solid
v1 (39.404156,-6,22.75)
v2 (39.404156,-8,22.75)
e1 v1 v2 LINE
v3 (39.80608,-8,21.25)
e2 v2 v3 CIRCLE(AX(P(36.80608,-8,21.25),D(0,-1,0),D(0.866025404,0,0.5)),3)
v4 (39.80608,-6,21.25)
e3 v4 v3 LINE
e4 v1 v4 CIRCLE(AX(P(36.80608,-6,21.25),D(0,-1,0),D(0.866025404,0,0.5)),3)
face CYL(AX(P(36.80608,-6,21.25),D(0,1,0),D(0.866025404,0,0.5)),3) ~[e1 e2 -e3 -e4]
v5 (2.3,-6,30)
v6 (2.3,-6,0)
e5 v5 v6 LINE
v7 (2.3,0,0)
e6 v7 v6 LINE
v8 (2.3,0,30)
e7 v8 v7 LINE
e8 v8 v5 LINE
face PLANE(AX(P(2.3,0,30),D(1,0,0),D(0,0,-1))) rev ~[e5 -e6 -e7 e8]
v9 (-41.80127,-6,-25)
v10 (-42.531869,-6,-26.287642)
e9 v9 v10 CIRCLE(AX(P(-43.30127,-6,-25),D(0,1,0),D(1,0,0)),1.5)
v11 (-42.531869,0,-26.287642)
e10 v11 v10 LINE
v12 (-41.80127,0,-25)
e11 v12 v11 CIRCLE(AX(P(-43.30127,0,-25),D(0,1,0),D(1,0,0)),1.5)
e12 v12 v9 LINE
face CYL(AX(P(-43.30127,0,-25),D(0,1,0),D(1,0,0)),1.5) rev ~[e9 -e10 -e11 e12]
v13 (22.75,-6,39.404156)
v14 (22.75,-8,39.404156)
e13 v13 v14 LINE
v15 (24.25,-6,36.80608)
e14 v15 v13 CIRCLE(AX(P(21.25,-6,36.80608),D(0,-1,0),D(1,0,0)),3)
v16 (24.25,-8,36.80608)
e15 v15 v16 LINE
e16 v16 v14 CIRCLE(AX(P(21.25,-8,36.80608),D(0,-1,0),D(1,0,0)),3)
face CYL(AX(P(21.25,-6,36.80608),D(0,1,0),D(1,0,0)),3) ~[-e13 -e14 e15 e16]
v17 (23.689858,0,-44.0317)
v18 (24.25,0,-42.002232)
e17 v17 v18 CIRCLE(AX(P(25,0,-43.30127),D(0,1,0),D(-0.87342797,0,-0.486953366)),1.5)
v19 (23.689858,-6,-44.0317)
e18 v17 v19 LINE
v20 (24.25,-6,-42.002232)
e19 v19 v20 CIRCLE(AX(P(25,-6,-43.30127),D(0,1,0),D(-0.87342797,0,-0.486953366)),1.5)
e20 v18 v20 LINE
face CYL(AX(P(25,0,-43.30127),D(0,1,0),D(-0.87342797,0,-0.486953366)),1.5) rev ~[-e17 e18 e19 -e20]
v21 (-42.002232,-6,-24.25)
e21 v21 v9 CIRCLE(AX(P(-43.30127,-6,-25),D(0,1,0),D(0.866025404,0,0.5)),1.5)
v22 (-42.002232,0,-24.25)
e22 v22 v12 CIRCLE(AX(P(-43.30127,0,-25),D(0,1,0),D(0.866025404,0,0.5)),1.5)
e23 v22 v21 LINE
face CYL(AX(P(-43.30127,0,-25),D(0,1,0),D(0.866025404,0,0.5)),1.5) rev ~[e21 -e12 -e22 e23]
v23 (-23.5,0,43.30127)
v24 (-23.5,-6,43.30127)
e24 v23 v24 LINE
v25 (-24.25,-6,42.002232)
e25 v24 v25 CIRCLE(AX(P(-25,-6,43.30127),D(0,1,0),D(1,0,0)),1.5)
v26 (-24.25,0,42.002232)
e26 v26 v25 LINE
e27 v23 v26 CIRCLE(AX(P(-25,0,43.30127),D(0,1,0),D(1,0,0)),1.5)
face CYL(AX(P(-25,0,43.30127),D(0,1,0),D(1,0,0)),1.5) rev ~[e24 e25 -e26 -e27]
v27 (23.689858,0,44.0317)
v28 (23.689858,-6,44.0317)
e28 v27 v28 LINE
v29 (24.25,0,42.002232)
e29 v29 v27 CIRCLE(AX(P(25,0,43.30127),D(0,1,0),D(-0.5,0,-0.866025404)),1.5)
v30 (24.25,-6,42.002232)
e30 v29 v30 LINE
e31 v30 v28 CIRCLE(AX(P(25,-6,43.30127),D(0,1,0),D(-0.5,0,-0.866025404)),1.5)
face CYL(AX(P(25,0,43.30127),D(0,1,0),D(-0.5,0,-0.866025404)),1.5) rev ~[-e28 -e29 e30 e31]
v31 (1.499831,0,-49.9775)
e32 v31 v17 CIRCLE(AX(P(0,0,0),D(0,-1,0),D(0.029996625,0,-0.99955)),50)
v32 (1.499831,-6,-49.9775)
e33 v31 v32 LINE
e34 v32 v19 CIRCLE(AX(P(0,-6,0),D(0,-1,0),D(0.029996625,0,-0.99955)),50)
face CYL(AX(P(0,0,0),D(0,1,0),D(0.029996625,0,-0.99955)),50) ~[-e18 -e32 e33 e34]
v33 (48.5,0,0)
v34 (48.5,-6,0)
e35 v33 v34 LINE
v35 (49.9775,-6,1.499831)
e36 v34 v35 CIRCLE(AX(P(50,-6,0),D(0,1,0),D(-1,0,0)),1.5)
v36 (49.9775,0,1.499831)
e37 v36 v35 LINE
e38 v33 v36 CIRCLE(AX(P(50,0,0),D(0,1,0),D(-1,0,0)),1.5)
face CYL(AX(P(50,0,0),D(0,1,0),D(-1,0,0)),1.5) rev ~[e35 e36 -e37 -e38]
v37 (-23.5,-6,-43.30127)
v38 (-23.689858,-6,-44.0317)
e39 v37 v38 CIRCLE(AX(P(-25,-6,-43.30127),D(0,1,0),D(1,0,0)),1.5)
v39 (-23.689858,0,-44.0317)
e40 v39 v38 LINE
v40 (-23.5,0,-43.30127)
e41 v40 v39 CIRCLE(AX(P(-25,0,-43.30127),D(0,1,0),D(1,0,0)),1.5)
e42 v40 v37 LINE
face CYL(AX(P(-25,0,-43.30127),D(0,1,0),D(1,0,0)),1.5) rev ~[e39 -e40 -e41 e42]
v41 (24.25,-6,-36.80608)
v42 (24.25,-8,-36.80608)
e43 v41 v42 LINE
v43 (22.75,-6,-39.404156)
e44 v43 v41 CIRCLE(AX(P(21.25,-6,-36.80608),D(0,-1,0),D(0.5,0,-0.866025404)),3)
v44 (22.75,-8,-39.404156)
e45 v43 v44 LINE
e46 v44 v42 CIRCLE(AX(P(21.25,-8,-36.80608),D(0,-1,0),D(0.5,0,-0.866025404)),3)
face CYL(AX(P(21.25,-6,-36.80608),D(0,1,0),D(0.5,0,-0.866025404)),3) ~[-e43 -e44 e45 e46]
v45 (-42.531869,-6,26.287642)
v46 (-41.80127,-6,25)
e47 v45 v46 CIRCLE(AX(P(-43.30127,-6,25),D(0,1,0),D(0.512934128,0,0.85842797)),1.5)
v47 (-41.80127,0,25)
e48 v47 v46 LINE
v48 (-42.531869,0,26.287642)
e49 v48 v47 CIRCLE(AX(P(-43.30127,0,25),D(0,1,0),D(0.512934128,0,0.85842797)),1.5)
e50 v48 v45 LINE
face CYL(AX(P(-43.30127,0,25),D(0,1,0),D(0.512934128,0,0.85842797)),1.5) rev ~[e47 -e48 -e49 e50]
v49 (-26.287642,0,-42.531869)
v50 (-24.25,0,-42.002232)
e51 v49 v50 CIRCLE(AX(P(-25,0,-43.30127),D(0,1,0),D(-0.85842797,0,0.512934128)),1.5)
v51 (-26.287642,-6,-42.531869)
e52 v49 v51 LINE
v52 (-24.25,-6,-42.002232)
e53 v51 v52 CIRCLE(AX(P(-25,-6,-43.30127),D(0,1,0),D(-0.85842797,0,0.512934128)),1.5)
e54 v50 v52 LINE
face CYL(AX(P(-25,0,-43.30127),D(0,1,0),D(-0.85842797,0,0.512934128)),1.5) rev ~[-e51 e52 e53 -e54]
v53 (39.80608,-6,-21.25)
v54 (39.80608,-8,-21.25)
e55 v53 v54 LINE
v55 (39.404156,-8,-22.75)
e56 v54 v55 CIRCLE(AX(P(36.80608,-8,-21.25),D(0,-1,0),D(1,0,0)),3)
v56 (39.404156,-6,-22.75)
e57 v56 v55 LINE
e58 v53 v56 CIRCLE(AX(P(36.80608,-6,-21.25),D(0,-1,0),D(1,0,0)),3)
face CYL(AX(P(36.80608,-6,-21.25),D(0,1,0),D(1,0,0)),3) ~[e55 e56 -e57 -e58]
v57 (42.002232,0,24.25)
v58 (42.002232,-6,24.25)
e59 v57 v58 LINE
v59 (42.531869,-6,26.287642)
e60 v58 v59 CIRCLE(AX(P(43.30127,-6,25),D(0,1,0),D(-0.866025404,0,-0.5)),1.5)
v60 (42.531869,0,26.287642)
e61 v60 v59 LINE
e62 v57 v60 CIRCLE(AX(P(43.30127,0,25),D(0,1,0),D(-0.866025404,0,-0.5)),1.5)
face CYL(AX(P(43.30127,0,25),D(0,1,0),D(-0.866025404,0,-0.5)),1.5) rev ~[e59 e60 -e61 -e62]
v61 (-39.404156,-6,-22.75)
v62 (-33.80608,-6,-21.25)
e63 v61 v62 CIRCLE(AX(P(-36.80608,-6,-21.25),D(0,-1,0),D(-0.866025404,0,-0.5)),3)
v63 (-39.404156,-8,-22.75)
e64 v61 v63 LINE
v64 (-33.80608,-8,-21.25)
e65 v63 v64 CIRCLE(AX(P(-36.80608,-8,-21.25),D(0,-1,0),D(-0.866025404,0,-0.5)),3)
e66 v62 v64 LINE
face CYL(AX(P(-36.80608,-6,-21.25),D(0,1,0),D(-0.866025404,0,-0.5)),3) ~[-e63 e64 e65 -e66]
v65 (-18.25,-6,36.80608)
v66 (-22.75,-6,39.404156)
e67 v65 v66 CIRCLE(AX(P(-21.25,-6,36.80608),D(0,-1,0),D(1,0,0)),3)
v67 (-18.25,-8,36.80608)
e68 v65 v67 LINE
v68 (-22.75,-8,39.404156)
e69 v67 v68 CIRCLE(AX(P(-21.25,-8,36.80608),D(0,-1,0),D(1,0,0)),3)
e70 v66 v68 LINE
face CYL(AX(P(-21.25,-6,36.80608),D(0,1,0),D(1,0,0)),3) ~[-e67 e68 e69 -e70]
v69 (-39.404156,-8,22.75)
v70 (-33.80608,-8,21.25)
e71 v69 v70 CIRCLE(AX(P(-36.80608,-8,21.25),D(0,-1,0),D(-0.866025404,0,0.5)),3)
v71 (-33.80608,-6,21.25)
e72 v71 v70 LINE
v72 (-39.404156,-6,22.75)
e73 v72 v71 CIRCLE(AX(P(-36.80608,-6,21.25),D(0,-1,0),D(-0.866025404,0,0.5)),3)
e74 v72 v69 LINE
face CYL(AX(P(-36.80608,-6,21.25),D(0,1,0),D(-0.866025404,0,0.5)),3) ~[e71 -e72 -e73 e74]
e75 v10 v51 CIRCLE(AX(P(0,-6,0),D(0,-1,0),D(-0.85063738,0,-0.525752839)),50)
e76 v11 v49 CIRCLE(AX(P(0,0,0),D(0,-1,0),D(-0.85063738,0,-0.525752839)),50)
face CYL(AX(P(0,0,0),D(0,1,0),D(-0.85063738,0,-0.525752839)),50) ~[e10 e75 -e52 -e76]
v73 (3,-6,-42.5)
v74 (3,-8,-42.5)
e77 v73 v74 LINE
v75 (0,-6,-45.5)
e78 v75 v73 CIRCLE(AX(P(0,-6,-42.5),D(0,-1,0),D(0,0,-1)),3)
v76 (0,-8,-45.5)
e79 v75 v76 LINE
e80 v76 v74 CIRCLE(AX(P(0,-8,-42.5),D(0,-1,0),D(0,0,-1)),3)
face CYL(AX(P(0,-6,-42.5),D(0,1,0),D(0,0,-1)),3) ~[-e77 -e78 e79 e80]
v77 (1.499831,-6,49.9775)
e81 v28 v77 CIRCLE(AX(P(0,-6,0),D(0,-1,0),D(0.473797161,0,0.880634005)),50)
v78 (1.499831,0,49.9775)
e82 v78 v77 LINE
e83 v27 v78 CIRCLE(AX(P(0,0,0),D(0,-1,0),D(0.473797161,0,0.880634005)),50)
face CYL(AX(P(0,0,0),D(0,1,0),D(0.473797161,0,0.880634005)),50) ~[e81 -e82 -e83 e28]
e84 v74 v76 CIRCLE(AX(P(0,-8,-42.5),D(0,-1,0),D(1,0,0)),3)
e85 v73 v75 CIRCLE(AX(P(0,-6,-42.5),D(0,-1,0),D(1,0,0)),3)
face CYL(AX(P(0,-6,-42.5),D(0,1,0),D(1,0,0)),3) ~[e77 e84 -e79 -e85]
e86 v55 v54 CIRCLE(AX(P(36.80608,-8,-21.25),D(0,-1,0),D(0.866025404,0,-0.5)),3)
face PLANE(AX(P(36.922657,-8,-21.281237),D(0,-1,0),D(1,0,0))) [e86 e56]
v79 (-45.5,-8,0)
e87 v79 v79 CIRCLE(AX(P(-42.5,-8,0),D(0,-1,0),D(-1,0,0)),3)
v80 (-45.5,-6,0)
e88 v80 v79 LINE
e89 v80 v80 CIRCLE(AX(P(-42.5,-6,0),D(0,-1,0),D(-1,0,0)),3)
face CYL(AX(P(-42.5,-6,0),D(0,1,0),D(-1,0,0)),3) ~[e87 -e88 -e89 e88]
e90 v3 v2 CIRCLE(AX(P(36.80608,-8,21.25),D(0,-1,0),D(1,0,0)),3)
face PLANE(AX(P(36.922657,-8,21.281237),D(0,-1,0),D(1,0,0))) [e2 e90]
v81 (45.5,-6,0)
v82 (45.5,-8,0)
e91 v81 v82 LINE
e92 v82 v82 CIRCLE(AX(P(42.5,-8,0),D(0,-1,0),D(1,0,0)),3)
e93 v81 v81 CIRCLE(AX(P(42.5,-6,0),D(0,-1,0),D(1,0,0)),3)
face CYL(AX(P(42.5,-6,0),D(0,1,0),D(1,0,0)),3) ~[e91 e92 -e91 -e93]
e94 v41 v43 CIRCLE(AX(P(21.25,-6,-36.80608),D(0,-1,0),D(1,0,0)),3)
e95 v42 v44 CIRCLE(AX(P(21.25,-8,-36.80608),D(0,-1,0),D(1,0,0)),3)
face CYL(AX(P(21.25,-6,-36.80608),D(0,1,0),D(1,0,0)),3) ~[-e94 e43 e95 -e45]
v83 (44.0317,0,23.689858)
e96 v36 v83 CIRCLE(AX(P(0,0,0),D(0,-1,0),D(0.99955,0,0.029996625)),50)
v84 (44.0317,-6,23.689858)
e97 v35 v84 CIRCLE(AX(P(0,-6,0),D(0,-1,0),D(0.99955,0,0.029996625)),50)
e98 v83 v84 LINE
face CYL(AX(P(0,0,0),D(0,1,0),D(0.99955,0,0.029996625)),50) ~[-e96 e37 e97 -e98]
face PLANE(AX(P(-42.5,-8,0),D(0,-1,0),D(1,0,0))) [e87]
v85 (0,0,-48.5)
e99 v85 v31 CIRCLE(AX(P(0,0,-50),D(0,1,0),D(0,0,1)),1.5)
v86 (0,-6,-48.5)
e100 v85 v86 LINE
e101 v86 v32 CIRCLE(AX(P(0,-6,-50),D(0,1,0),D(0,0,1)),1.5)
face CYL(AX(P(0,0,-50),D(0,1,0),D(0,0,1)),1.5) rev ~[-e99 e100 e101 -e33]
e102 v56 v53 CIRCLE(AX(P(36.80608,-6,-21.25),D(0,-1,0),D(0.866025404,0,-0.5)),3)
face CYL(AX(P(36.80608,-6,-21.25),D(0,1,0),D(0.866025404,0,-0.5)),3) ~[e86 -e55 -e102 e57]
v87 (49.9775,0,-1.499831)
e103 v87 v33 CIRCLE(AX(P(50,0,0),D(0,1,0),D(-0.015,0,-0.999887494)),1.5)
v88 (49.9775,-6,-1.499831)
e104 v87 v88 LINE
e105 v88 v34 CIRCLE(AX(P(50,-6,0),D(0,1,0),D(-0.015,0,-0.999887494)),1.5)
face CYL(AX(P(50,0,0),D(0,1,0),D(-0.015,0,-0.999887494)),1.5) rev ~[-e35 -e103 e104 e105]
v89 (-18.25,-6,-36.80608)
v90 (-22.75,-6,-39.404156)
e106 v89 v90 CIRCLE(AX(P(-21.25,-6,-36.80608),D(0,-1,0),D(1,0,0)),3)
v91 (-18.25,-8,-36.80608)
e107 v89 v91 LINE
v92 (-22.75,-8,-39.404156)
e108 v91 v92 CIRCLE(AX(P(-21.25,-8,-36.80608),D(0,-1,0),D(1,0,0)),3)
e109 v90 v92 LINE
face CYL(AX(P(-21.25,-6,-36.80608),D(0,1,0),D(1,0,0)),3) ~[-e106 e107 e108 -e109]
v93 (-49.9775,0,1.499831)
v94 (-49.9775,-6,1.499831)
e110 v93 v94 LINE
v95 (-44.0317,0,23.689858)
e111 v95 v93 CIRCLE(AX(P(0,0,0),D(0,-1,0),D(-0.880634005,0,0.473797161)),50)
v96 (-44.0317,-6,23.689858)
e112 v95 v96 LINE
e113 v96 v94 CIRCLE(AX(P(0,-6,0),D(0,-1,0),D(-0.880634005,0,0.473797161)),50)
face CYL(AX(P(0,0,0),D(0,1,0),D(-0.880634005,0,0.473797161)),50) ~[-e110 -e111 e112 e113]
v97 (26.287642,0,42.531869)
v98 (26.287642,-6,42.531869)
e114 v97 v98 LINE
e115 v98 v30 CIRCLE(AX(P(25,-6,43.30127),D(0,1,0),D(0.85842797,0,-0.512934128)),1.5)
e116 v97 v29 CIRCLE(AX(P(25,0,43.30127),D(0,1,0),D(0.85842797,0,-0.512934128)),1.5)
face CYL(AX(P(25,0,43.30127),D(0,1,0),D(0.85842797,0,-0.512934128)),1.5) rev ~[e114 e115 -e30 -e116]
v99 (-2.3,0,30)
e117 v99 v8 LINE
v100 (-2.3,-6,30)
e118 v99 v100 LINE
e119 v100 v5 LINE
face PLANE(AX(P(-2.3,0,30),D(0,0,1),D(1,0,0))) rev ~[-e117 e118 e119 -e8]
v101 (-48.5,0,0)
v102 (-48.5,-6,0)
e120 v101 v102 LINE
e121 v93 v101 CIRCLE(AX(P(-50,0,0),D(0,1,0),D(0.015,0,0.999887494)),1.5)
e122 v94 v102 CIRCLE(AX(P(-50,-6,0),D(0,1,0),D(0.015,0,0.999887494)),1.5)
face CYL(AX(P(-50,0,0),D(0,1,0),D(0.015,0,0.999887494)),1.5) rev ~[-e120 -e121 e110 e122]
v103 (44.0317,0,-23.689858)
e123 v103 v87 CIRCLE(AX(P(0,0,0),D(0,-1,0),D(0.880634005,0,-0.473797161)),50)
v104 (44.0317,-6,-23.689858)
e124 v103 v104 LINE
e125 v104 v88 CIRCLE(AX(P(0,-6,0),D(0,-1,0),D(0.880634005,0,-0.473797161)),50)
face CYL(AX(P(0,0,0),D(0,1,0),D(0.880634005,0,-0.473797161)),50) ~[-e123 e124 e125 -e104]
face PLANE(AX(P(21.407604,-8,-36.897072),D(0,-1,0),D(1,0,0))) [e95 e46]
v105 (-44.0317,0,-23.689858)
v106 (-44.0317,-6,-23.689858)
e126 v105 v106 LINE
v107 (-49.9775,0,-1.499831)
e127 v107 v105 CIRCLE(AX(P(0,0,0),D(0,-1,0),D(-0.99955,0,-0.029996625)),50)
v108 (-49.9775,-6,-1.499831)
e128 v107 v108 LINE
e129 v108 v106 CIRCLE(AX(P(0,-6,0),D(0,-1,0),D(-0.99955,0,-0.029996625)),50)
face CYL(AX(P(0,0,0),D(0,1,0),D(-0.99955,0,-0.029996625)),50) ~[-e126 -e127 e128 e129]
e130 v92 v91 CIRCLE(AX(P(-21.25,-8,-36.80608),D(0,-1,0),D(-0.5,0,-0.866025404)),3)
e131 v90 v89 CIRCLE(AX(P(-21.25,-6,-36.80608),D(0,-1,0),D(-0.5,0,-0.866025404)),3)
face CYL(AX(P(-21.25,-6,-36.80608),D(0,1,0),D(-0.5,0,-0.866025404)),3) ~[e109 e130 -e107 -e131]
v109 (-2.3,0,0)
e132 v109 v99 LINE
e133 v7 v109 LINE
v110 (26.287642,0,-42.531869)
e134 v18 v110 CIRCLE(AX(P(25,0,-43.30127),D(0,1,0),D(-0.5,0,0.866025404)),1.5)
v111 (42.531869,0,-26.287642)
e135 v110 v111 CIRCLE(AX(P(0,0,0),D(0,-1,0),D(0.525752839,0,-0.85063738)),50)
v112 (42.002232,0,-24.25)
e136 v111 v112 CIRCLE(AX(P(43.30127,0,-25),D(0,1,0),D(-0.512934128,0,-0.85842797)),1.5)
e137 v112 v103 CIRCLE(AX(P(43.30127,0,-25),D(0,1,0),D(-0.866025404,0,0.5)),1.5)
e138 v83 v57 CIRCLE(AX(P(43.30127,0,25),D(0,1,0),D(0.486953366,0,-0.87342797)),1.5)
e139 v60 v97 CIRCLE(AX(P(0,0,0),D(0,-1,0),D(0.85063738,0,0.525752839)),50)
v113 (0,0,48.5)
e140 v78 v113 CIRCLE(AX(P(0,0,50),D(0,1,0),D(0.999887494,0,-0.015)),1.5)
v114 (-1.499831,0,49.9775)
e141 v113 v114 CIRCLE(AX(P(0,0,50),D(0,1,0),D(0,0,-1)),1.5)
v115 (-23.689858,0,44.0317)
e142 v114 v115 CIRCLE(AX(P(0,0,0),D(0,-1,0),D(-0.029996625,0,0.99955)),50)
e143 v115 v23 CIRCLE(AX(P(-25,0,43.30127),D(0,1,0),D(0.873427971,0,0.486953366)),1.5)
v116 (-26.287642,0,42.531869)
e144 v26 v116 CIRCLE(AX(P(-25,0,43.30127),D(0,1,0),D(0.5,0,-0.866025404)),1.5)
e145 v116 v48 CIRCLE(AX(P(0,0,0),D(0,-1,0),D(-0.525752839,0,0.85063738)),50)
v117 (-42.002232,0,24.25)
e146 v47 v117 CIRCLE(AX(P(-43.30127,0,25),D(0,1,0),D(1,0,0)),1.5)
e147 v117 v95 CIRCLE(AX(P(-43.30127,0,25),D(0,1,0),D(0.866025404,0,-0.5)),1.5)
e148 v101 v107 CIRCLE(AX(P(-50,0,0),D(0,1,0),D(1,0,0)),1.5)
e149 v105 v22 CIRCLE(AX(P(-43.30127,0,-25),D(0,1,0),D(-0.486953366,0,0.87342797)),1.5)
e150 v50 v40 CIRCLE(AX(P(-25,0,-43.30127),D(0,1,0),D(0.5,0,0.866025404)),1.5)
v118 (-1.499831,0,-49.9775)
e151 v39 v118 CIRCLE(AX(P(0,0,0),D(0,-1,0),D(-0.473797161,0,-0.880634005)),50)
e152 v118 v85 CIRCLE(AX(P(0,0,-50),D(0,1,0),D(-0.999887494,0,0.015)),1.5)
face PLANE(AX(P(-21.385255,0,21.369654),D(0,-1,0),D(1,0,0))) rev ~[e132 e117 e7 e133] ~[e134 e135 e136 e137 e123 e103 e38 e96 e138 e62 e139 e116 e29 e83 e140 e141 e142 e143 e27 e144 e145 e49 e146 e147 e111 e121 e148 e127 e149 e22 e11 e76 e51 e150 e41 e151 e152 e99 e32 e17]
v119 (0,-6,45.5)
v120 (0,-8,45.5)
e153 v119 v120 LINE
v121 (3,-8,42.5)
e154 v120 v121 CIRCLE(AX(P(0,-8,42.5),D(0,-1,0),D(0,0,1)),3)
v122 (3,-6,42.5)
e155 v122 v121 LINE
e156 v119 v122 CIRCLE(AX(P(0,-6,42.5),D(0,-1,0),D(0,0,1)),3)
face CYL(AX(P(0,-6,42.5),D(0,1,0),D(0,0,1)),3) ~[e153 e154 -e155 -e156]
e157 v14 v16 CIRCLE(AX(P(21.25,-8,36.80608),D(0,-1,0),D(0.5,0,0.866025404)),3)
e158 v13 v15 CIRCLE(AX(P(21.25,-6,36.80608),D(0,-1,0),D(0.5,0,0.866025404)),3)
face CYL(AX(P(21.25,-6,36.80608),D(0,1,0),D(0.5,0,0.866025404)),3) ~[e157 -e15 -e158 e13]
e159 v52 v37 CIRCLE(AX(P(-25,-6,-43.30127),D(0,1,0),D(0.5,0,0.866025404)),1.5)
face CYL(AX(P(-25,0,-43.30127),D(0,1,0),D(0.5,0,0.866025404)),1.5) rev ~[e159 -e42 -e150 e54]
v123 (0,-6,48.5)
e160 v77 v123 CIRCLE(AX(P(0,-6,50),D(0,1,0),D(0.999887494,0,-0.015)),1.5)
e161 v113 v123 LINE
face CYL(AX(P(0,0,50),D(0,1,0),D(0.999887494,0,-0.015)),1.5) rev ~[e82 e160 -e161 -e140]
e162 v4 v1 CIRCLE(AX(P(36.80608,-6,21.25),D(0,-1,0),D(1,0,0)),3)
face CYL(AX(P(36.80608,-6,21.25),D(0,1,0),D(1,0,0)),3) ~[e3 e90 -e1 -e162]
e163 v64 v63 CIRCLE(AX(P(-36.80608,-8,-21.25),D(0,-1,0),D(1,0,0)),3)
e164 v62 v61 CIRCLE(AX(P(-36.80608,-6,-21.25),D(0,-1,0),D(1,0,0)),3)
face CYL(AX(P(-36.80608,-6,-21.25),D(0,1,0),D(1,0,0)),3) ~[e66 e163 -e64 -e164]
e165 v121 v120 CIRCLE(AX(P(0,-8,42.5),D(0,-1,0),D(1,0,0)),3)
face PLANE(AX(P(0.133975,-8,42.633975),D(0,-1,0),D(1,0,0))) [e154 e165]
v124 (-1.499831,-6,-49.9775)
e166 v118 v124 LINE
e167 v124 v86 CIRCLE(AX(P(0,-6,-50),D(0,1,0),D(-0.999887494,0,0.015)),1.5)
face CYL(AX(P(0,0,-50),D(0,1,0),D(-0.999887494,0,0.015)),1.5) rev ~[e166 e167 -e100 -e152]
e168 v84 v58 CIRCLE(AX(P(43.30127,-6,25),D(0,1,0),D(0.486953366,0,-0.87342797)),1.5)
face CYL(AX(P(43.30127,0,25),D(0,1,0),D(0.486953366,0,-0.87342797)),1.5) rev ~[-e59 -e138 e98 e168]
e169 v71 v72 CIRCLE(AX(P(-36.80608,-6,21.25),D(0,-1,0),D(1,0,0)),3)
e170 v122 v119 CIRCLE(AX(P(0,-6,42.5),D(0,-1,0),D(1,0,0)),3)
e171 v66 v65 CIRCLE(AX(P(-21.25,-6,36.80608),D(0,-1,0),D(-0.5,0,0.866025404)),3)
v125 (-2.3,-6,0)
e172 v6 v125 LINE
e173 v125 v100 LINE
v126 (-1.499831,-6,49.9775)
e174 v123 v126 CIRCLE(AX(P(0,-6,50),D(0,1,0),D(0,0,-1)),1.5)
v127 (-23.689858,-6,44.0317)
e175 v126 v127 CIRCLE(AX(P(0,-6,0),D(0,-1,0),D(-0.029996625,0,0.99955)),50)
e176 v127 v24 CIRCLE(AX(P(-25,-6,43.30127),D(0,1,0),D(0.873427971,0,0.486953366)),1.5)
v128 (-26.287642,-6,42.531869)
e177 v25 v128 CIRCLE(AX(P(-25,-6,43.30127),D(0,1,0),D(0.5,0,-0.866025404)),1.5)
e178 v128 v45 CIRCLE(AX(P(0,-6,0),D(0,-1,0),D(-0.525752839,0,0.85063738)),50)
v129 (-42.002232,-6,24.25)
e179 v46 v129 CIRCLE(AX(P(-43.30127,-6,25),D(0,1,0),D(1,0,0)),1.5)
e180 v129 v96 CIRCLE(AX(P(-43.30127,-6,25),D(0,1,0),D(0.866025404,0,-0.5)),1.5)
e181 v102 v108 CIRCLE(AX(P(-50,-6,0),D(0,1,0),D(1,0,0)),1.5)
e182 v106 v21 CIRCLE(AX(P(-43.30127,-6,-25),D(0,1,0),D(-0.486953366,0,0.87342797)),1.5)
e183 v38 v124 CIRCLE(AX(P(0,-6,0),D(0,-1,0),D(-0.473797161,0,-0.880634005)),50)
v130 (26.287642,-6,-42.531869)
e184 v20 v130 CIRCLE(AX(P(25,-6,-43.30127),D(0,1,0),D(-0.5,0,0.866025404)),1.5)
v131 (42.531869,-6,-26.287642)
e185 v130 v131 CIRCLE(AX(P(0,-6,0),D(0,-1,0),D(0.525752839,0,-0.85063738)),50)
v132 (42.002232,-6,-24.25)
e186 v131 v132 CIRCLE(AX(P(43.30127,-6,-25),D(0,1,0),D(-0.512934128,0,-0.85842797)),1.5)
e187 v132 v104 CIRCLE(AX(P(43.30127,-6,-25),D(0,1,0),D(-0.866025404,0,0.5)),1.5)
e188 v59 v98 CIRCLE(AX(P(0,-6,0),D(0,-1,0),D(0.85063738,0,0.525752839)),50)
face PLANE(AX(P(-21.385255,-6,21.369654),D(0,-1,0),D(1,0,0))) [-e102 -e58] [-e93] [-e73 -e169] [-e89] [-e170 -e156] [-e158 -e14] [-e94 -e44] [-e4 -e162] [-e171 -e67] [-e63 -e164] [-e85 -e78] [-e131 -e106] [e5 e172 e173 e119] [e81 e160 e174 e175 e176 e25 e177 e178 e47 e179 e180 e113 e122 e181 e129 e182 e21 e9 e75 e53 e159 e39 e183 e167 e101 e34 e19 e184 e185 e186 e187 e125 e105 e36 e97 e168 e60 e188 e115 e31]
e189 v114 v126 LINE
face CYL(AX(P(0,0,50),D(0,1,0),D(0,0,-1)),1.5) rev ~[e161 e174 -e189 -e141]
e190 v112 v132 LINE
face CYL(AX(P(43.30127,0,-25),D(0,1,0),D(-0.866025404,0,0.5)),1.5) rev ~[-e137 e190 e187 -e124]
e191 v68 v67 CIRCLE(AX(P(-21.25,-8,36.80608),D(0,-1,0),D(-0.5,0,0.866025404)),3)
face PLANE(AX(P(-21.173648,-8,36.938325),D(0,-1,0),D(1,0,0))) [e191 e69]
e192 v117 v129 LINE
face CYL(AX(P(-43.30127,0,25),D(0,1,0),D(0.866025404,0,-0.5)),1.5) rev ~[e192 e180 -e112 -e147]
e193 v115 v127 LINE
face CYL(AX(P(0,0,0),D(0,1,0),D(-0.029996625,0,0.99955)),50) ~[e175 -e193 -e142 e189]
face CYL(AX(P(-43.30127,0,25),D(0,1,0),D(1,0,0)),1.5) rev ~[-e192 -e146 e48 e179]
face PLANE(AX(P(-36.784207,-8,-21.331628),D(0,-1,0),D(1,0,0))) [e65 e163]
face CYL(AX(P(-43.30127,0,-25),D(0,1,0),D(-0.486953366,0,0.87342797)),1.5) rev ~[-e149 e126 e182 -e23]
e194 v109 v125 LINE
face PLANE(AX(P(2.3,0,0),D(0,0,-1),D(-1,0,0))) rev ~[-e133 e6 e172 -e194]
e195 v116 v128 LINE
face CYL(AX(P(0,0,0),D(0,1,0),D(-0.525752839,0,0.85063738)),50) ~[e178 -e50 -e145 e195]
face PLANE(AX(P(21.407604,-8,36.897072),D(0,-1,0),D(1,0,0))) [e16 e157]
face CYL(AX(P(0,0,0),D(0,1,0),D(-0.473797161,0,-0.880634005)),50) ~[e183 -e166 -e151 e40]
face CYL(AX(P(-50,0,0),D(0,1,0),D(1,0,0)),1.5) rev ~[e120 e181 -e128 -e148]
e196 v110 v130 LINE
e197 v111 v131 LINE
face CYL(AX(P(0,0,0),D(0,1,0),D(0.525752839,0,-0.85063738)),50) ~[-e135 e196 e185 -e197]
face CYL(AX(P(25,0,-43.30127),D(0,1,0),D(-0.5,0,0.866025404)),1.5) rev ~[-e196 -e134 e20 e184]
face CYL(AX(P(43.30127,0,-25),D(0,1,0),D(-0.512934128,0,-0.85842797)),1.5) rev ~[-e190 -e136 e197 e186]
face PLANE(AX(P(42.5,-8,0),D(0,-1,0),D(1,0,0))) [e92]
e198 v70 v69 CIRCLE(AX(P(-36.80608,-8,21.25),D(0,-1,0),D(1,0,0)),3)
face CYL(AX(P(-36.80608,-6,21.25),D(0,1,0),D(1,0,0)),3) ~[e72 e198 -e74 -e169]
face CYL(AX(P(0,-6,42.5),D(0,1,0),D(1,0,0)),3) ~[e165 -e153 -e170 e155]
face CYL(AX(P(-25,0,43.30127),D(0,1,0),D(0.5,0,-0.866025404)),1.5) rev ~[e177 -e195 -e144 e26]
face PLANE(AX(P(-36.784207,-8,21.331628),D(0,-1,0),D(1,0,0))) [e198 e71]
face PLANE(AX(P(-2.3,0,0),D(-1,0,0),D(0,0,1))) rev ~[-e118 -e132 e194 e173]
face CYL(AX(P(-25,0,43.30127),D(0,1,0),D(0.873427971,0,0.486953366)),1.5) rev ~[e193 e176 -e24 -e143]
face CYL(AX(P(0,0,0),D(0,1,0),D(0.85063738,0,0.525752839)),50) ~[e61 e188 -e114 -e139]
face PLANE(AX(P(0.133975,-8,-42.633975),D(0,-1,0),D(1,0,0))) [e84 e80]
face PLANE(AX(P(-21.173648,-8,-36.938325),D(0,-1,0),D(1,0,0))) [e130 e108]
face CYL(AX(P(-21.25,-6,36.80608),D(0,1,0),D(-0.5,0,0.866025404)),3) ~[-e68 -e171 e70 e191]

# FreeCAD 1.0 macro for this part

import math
import FreeCAD as App
import Part
import Sketcher
Q = App.Units.Quantity


def add_polygon(sketch, points):
    """Adds a closed chain of lines whose ends are joined by coincident constraints."""
    first, n = sketch.GeometryCount, len(points)
    for a, b in zip(points, points[1:] + points[:1]):
        sketch.addGeometry(Part.LineSegment(App.Vector(*a, 0), App.Vector(*b, 0)), False)
    for i in range(n):
        sketch.addConstraint(Sketcher.Constraint("Coincident", first + i, 2, first + (i + 1) % n, 1))

doc = App.newDocument("Part")
body = doc.addObject("PartDesign::Body", "Body")

sketch1 = doc.addObject("Sketcher::SketchObject", "Sketch")
body.addObject(sketch1)
sketch1.AttachmentSupport = (doc.XZ_Plane, [""])
sketch1.MapMode = "FlatFace"
sketch1.addGeometry(Part.ArcOfCircle(Part.Circle(App.Vector(-50, 0, 0), App.Vector(0, 0, 1), 1.5), math.radians(-89.140531), math.radians(0)), False)
sketch1.addGeometry(Part.ArcOfCircle(Part.Circle(App.Vector(0, 0, 0), App.Vector(0, 0, 1), 50), math.radians(-178.281062), math.radians(-151.718938)), False)
sketch1.addGeometry(Part.ArcOfCircle(Part.Circle(App.Vector(-43.30127, -25, 0), App.Vector(0, 0, 1), 1.5), math.radians(30), math.radians(119.140531)), False)
sketch1.addGeometry(Part.ArcOfCircle(Part.Circle(App.Vector(-43.30127, -25, 0), App.Vector(0, 0, 1), 1.5), math.radians(0), math.radians(30)), False)
sketch1.addGeometry(Part.ArcOfCircle(Part.Circle(App.Vector(-43.30127, -25, 0), App.Vector(0, 0, 1), 1.5), math.radians(-59.140531), math.radians(0)), False)
sketch1.addGeometry(Part.ArcOfCircle(Part.Circle(App.Vector(0, 0, 0), App.Vector(0, 0, 1), 50), math.radians(-148.281062), math.radians(-121.718938)), False)
sketch1.addGeometry(Part.ArcOfCircle(Part.Circle(App.Vector(-25, -43.30127, 0), App.Vector(0, 0, 1), 1.5), math.radians(60), math.radians(149.140531)), False)
sketch1.addGeometry(Part.ArcOfCircle(Part.Circle(App.Vector(-25, -43.30127, 0), App.Vector(0, 0, 1), 1.5), math.radians(0), math.radians(60)), False)
sketch1.addGeometry(Part.ArcOfCircle(Part.Circle(App.Vector(-25, -43.30127, 0), App.Vector(0, 0, 1), 1.5), math.radians(-29.140531), math.radians(0)), False)
sketch1.addGeometry(Part.ArcOfCircle(Part.Circle(App.Vector(0, 0, 0), App.Vector(0, 0, 1), 50), math.radians(-118.281062), math.radians(-91.718938)), False)
sketch1.addGeometry(Part.ArcOfCircle(Part.Circle(App.Vector(0, -50, 0), App.Vector(0, 0, 1), 1.5), math.radians(90), math.radians(179.140531)), False)
sketch1.addGeometry(Part.ArcOfCircle(Part.Circle(App.Vector(0, -50, 0), App.Vector(0, 0, 1), 1.5), math.radians(0.859469), math.radians(90)), False)
sketch1.addGeometry(Part.ArcOfCircle(Part.Circle(App.Vector(0, 0, 0), App.Vector(0, 0, 1), 50), math.radians(-88.281062), math.radians(-61.718938)), False)
sketch1.addGeometry(Part.ArcOfCircle(Part.Circle(App.Vector(25, -43.30127, 0), App.Vector(0, 0, 1), 1.5), math.radians(120), math.radians(209.140531)), False)
sketch1.addGeometry(Part.ArcOfCircle(Part.Circle(App.Vector(25, -43.30127, 0), App.Vector(0, 0, 1), 1.5), math.radians(30.859469), math.radians(120)), False)
sketch1.addGeometry(Part.ArcOfCircle(Part.Circle(App.Vector(0, 0, 0), App.Vector(0, 0, 1), 50), math.radians(-58.281062), math.radians(-31.718938)), False)
sketch1.addGeometry(Part.ArcOfCircle(Part.Circle(App.Vector(43.30127, -25, 0), App.Vector(0, 0, 1), 1.5), math.radians(150), math.radians(239.140531)), False)
sketch1.addGeometry(Part.ArcOfCircle(Part.Circle(App.Vector(43.30127, -25, 0), App.Vector(0, 0, 1), 1.5), math.radians(60.859469), math.radians(150)), False)
sketch1.addGeometry(Part.ArcOfCircle(Part.Circle(App.Vector(0, 0, 0), App.Vector(0, 0, 1), 50), math.radians(-28.281062), math.radians(-1.718938)), False)
sketch1.addGeometry(Part.ArcOfCircle(Part.Circle(App.Vector(50, 0, 0), App.Vector(0, 0, 1), 1.5), math.radians(180), math.radians(269.140531)), False)
sketch1.addGeometry(Part.ArcOfCircle(Part.Circle(App.Vector(50, 0, 0), App.Vector(0, 0, 1), 1.5), math.radians(90.859469), math.radians(180)), False)
sketch1.addGeometry(Part.ArcOfCircle(Part.Circle(App.Vector(0, 0, 0), App.Vector(0, 0, 1), 50), math.radians(1.718938), math.radians(28.281062)), False)
sketch1.addGeometry(Part.ArcOfCircle(Part.Circle(App.Vector(43.30127, 25, 0), App.Vector(0, 0, 1), 1.5), math.radians(-150), math.radians(-60.859469)), False)
sketch1.addGeometry(Part.ArcOfCircle(Part.Circle(App.Vector(43.30127, 25, 0), App.Vector(0, 0, 1), 1.5), math.radians(120.859469), math.radians(210)), False)
sketch1.addGeometry(Part.ArcOfCircle(Part.Circle(App.Vector(0, 0, 0), App.Vector(0, 0, 1), 50), math.radians(31.718938), math.radians(58.281062)), False)
sketch1.addGeometry(Part.ArcOfCircle(Part.Circle(App.Vector(25, 43.30127, 0), App.Vector(0, 0, 1), 1.5), math.radians(-120), math.radians(-30.859469)), False)
sketch1.addGeometry(Part.ArcOfCircle(Part.Circle(App.Vector(25, 43.30127, 0), App.Vector(0, 0, 1), 1.5), math.radians(150.859469), math.radians(240)), False)
sketch1.addGeometry(Part.ArcOfCircle(Part.Circle(App.Vector(0, 0, 0), App.Vector(0, 0, 1), 50), math.radians(61.718938), math.radians(88.281062)), False)
sketch1.addGeometry(Part.ArcOfCircle(Part.Circle(App.Vector(0, 50, 0), App.Vector(0, 0, 1), 1.5), math.radians(-90), math.radians(-0.859469)), False)
sketch1.addGeometry(Part.ArcOfCircle(Part.Circle(App.Vector(0, 50, 0), App.Vector(0, 0, 1), 1.5), math.radians(-179.140531), math.radians(-90)), False)
sketch1.addGeometry(Part.ArcOfCircle(Part.Circle(App.Vector(0, 0, 0), App.Vector(0, 0, 1), 50), math.radians(91.718938), math.radians(118.281062)), False)
sketch1.addGeometry(Part.ArcOfCircle(Part.Circle(App.Vector(-25, 43.30127, 0), App.Vector(0, 0, 1), 1.5), math.radians(0), math.radians(29.140531)), False)
sketch1.addGeometry(Part.ArcOfCircle(Part.Circle(App.Vector(-25, 43.30127, 0), App.Vector(0, 0, 1), 1.5), math.radians(-60), math.radians(0)), False)
sketch1.addGeometry(Part.ArcOfCircle(Part.Circle(App.Vector(-25, 43.30127, 0), App.Vector(0, 0, 1), 1.5), math.radians(-149.140531), math.radians(-60)), False)
sketch1.addGeometry(Part.ArcOfCircle(Part.Circle(App.Vector(0, 0, 0), App.Vector(0, 0, 1), 50), math.radians(121.718938), math.radians(148.281062)), False)
sketch1.addGeometry(Part.ArcOfCircle(Part.Circle(App.Vector(-43.30127, 25, 0), App.Vector(0, 0, 1), 1.5), math.radians(0), math.radians(59.140531)), False)
sketch1.addGeometry(Part.ArcOfCircle(Part.Circle(App.Vector(-43.30127, 25, 0), App.Vector(0, 0, 1), 1.5), math.radians(-30), math.radians(0)), False)
sketch1.addGeometry(Part.ArcOfCircle(Part.Circle(App.Vector(-43.30127, 25, 0), App.Vector(0, 0, 1), 1.5), math.radians(-119.140531), math.radians(-30)), False)
sketch1.addGeometry(Part.ArcOfCircle(Part.Circle(App.Vector(0, 0, 0), App.Vector(0, 0, 1), 50), math.radians(151.718938), math.radians(178.281062)), False)
sketch1.addGeometry(Part.ArcOfCircle(Part.Circle(App.Vector(-50, 0, 0), App.Vector(0, 0, 1), 1.5), math.radians(0), math.radians(89.140531)), False)
add_polygon(sketch1, [(-2.3, 30), (2.3, 30), (2.3, 0), (-2.3, 0)])
sketch1.addConstraint([
    Sketcher.Constraint("Coincident", 0, 1, 1, 1),
    Sketcher.Constraint("Coincident", 1, 2, 2, 2),
    Sketcher.Constraint("Tangent", 2, 1, 3, 2),
    Sketcher.Constraint("Tangent", 3, 1, 4, 2),
    Sketcher.Constraint("Coincident", 4, 1, 5, 1),
    Sketcher.Constraint("Coincident", 5, 2, 6, 2),
    Sketcher.Constraint("Tangent", 6, 1, 7, 2),
    Sketcher.Constraint("Tangent", 7, 1, 8, 2),
    Sketcher.Constraint("Coincident", 8, 1, 9, 1),
    Sketcher.Constraint("Coincident", 9, 2, 10, 2),
    Sketcher.Constraint("Tangent", 10, 1, 11, 2),
    Sketcher.Constraint("Coincident", 11, 1, 12, 1),
    Sketcher.Constraint("Coincident", 12, 2, 13, 2),
    Sketcher.Constraint("Tangent", 13, 1, 14, 2),
    Sketcher.Constraint("Coincident", 14, 1, 15, 1),
    Sketcher.Constraint("Coincident", 15, 2, 16, 2),
    Sketcher.Constraint("Tangent", 16, 1, 17, 2),
    Sketcher.Constraint("Coincident", 17, 1, 18, 1),
    Sketcher.Constraint("Coincident", 18, 2, 19, 2),
    Sketcher.Constraint("Tangent", 19, 1, 20, 2),
    Sketcher.Constraint("Coincident", 20, 1, 21, 1),
    Sketcher.Constraint("Coincident", 21, 2, 22, 2),
    Sketcher.Constraint("Tangent", 22, 1, 23, 2),
    Sketcher.Constraint("Coincident", 23, 1, 24, 1),
    Sketcher.Constraint("Coincident", 24, 2, 25, 2),
    Sketcher.Constraint("Tangent", 25, 1, 26, 2),
    Sketcher.Constraint("Coincident", 26, 1, 27, 1),
    Sketcher.Constraint("Coincident", 27, 2, 28, 2),
    Sketcher.Constraint("Tangent", 28, 1, 29, 2),
    Sketcher.Constraint("Coincident", 29, 1, 30, 1),
    Sketcher.Constraint("Coincident", 30, 2, 31, 2),
    Sketcher.Constraint("Tangent", 31, 1, 32, 2),
    Sketcher.Constraint("Tangent", 32, 1, 33, 2),
    Sketcher.Constraint("Coincident", 33, 1, 34, 1),
    Sketcher.Constraint("Coincident", 34, 2, 35, 2),
    Sketcher.Constraint("Tangent", 35, 1, 36, 2),
    Sketcher.Constraint("Tangent", 36, 1, 37, 2),
    Sketcher.Constraint("Coincident", 37, 1, 38, 1),
    Sketcher.Constraint("Coincident", 38, 2, 39, 2),
    Sketcher.Constraint("Tangent", 39, 1, 0, 2),
    Sketcher.Constraint("Horizontal", 40),
    Sketcher.Constraint("Vertical", 41),
    Sketcher.Constraint("Horizontal", 42),
    Sketcher.Constraint("Vertical", 43),
    Sketcher.Constraint("Coincident", 1, 3, -1, 1),
    Sketcher.Constraint("Coincident", 5, 3, -1, 1),
    Sketcher.Constraint("Coincident", 9, 3, -1, 1),
    Sketcher.Constraint("Coincident", 12, 3, -1, 1),
    Sketcher.Constraint("Coincident", 15, 3, -1, 1),
    Sketcher.Constraint("Coincident", 18, 3, -1, 1),
    Sketcher.Constraint("Coincident", 21, 3, -1, 1),
    Sketcher.Constraint("Coincident", 24, 3, -1, 1),
    Sketcher.Constraint("Coincident", 27, 3, -1, 1),
    Sketcher.Constraint("Coincident", 30, 3, -1, 1),
    Sketcher.Constraint("Coincident", 34, 3, -1, 1),
    Sketcher.Constraint("Coincident", 38, 3, -1, 1),
    Sketcher.Constraint("Coincident", 4, 3, 2, 3),
    Sketcher.Constraint("Coincident", 8, 3, 6, 3),
    Sketcher.Constraint("Coincident", 33, 3, 31, 3),
    Sketcher.Constraint("Coincident", 37, 3, 35, 3),
    Sketcher.Constraint("Equal", 0, 2),
    Sketcher.Constraint("Equal", 1, 5),
    Sketcher.Constraint("Equal", 4, 6),
    Sketcher.Constraint("Equal", 5, 9),
    Sketcher.Constraint("Equal", 8, 10),
    Sketcher.Constraint("Equal", 10, 11),
    Sketcher.Constraint("Equal", 9, 12),
    Sketcher.Constraint("Equal", 11, 13),
    Sketcher.Constraint("Equal", 13, 14),
    Sketcher.Constraint("Equal", 12, 15),
    Sketcher.Constraint("Equal", 14, 16),
    Sketcher.Constraint("Equal", 16, 17),
    Sketcher.Constraint("Equal", 15, 18),
    Sketcher.Constraint("Equal", 17, 19),
    Sketcher.Constraint("Equal", 19, 20),
    Sketcher.Constraint("Equal", 18, 21),
    Sketcher.Constraint("Equal", 20, 22),
    Sketcher.Constraint("Equal", 22, 23),
    Sketcher.Constraint("Equal", 21, 24),
    Sketcher.Constraint("Equal", 23, 25),
    Sketcher.Constraint("Equal", 25, 26),
    Sketcher.Constraint("Equal", 24, 27),
    Sketcher.Constraint("Equal", 26, 28),
    Sketcher.Constraint("Equal", 28, 29),
    Sketcher.Constraint("Equal", 27, 30),
    Sketcher.Constraint("Equal", 29, 31),
    Sketcher.Constraint("Equal", 30, 34),
    Sketcher.Constraint("Equal", 33, 35),
    Sketcher.Constraint("Equal", 34, 38),
    Sketcher.Constraint("Equal", 37, 39),
    Sketcher.Constraint("Symmetric", 0, 3, 19, 3, -1, 1),
    Sketcher.Constraint("Symmetric", 2, 3, 22, 3, -1, 1),
    Sketcher.Constraint("Symmetric", 6, 3, 25, 3, -1, 1),
    Sketcher.Constraint("Symmetric", 10, 3, 28, 3, -1, 1),
    Sketcher.Constraint("Symmetric", 13, 3, 31, 3, -1, 1),
    Sketcher.Constraint("Symmetric", 16, 3, 35, 3, -1, 1),
    Sketcher.Constraint("Symmetric", 41, 2, 42, 2, -1, 1),
    Sketcher.Constraint("Symmetric", 6, 3, 13, 3, -2),
    Sketcher.Constraint("Symmetric", 2, 3, 16, 3, -2),
    Sketcher.Constraint("PointOnObject", 0, 3, -1),
    Sketcher.Constraint("PointOnObject", 10, 3, -2),
    Sketcher.Constraint("PointOnObject", 10, 1, -2),
    Sketcher.Constraint("PointOnObject", 19, 1, -1),
    Sketcher.Constraint("PointOnObject", 28, 1, -2),
    Sketcher.Constraint("PointOnObject", 39, 1, -1),
    Sketcher.Constraint("Horizontal", 17, 3, 3, 1),
    Sketcher.Constraint("Horizontal", 14, 3, 7, 1),
    Sketcher.Constraint("Horizontal", 6, 1, 13, 1),
    Sketcher.Constraint("Horizontal", 2, 1, 16, 1),
    Sketcher.Constraint("Horizontal", 33, 3, 31, 1),
    Sketcher.Constraint("Horizontal", 25, 1, 32, 1),
    Sketcher.Constraint("Horizontal", 37, 3, 35, 1),
    Sketcher.Constraint("Horizontal", 22, 1, 36, 1),
    Sketcher.Constraint("Vertical", 16, 1, 22, 1),
    Sketcher.Constraint("Vertical", 13, 1, 25, 1),
    Sketcher.Constraint("Radius", 1, Q("50 mm")),
    Sketcher.Constraint("Radius", 0, Q("1.5 mm")),
    Sketcher.Constraint("DistanceY", 41, 2, 41, 1, Q("30 mm")),
    Sketcher.Constraint("DistanceX", 40, 1, 40, 2, Q("4.6 mm")),
    Sketcher.Constraint("DistanceX", 0, 3, -1, 1, Q("50 mm")),
    Sketcher.Constraint("DistanceY", 2, 3, -1, 1, Q("25 mm")),
    Sketcher.Constraint("DistanceX", 6, 3, -1, 1, Q("25 mm")),
    Sketcher.Constraint("DistanceY", 10, 3, -1, 1, Q("50 mm")),
    Sketcher.Constraint("DistanceY", 2, 1, -1, 1, Q("24.25 mm")),
    Sketcher.Constraint("DistanceX", 6, 1, -1, 1, Q("24.25 mm")),
    Sketcher.Constraint("DistanceX", 1, 2, -1, 1, Q("44.0317 mm")),
    Sketcher.Constraint("DistanceY", 8, 1, -1, 1, Q("44.0317 mm")),
])
pad1 = doc.addObject("PartDesign::Pad", "Pad")
body.addObject(pad1)
pad1.Profile = sketch1
pad1.Length = 6

sketch2 = doc.addObject("Sketcher::SketchObject", "Sketch001")
body.addObject(sketch2)
sketch2.AttachmentSupport = (doc.XZ_Plane, [""])
sketch2.MapMode = "FlatFace"
sketch2.AttachmentOffset = App.Placement(App.Vector(0, 0, 6), App.Rotation())
sketch2.addGeometry([
    Part.ArcOfCircle(Part.Circle(App.Vector(0, 42.5, 0), App.Vector(0, 0, 1), 3), math.radians(0), math.radians(90)),
    Part.ArcOfCircle(Part.Circle(App.Vector(0, 42.5, 0), App.Vector(0, 0, 1), 3), math.radians(90), math.radians(360)),
    Part.ArcOfCircle(Part.Circle(App.Vector(21.25, 36.80608, 0), App.Vector(0, 0, 1), 3), math.radians(0), math.radians(60)),
    Part.ArcOfCircle(Part.Circle(App.Vector(21.25, 36.80608, 0), App.Vector(0, 0, 1), 3), math.radians(60), math.radians(360)),
    Part.ArcOfCircle(Part.Circle(App.Vector(36.80608, 21.25, 0), App.Vector(0, 0, 1), 3), math.radians(0), math.radians(30)),
    Part.ArcOfCircle(Part.Circle(App.Vector(36.80608, 21.25, 0), App.Vector(0, 0, 1), 3), math.radians(30), math.radians(360)),
    Part.Circle(App.Vector(42.5, 0, 0), App.Vector(0, 0, 1), 3),
    Part.ArcOfCircle(Part.Circle(App.Vector(36.80608, -21.25, 0), App.Vector(0, 0, 1), 3), math.radians(0), math.radians(330)),
    Part.ArcOfCircle(Part.Circle(App.Vector(36.80608, -21.25, 0), App.Vector(0, 0, 1), 3), math.radians(-30), math.radians(0)),
    Part.ArcOfCircle(Part.Circle(App.Vector(21.25, -36.80608, 0), App.Vector(0, 0, 1), 3), math.radians(0), math.radians(300)),
    Part.ArcOfCircle(Part.Circle(App.Vector(21.25, -36.80608, 0), App.Vector(0, 0, 1), 3), math.radians(-60), math.radians(0)),
    Part.ArcOfCircle(Part.Circle(App.Vector(0, -42.5, 0), App.Vector(0, 0, 1), 3), math.radians(0), math.radians(270)),
    Part.ArcOfCircle(Part.Circle(App.Vector(0, -42.5, 0), App.Vector(0, 0, 1), 3), math.radians(-90), math.radians(0)),
    Part.ArcOfCircle(Part.Circle(App.Vector(-21.25, -36.80608, 0), App.Vector(0, 0, 1), 3), math.radians(0), math.radians(240)),
    Part.ArcOfCircle(Part.Circle(App.Vector(-21.25, -36.80608, 0), App.Vector(0, 0, 1), 3), math.radians(-120), math.radians(0)),
    Part.ArcOfCircle(Part.Circle(App.Vector(-36.80608, -21.25, 0), App.Vector(0, 0, 1), 3), math.radians(0), math.radians(210)),
    Part.ArcOfCircle(Part.Circle(App.Vector(-36.80608, -21.25, 0), App.Vector(0, 0, 1), 3), math.radians(-150), math.radians(0)),
    Part.Circle(App.Vector(-42.5, 0, 0), App.Vector(0, 0, 1), 3),
    Part.ArcOfCircle(Part.Circle(App.Vector(-36.80608, 21.25, 0), App.Vector(0, 0, 1), 3), math.radians(0), math.radians(150)),
    Part.ArcOfCircle(Part.Circle(App.Vector(-36.80608, 21.25, 0), App.Vector(0, 0, 1), 3), math.radians(150), math.radians(360)),
    Part.ArcOfCircle(Part.Circle(App.Vector(-21.25, 36.80608, 0), App.Vector(0, 0, 1), 3), math.radians(0), math.radians(120)),
    Part.ArcOfCircle(Part.Circle(App.Vector(-21.25, 36.80608, 0), App.Vector(0, 0, 1), 3), math.radians(120), math.radians(360)),
], False)
sketch2.addConstraint([
    Sketcher.Constraint("Tangent", 0, 1, 1, 2),
    Sketcher.Constraint("Coincident", 1, 1, 0, 2),
    Sketcher.Constraint("Tangent", 2, 1, 3, 2),
    Sketcher.Constraint("Coincident", 3, 1, 2, 2),
    Sketcher.Constraint("Tangent", 4, 1, 5, 2),
    Sketcher.Constraint("Coincident", 5, 1, 4, 2),
    Sketcher.Constraint("Tangent", 7, 1, 8, 2),
    Sketcher.Constraint("Coincident", 8, 1, 7, 2),
    Sketcher.Constraint("Tangent", 9, 1, 10, 2),
    Sketcher.Constraint("Coincident", 10, 1, 9, 2),
    Sketcher.Constraint("Tangent", 11, 1, 12, 2),
    Sketcher.Constraint("Coincident", 12, 1, 11, 2),
    Sketcher.Constraint("Tangent", 13, 1, 14, 2),
    Sketcher.Constraint("Coincident", 14, 1, 13, 2),
    Sketcher.Constraint("Tangent", 15, 1, 16, 2),
    Sketcher.Constraint("Coincident", 16, 1, 15, 2),
    Sketcher.Constraint("Tangent", 18, 1, 19, 2),
    Sketcher.Constraint("Coincident", 19, 1, 18, 2),
    Sketcher.Constraint("Tangent", 20, 1, 21, 2),
    Sketcher.Constraint("Coincident", 21, 1, 20, 2),
    Sketcher.Constraint("Equal", 1, 2),
    Sketcher.Constraint("Equal", 3, 4),
    Sketcher.Constraint("Equal", 5, 6),
    Sketcher.Constraint("Equal", 6, 7),
    Sketcher.Constraint("Equal", 8, 9),
    Sketcher.Constraint("Equal", 10, 11),
    Sketcher.Constraint("Equal", 12, 13),
    Sketcher.Constraint("Equal", 14, 15),
    Sketcher.Constraint("Equal", 16, 17),
    Sketcher.Constraint("Equal", 17, 18),
    Sketcher.Constraint("Equal", 19, 20),
    Sketcher.Constraint("Symmetric", 0, 3, 11, 3, -1, 1),
    Sketcher.Constraint("Symmetric", 2, 3, 13, 3, -1, 1),
    Sketcher.Constraint("Symmetric", 4, 3, 15, 3, -1, 1),
    Sketcher.Constraint("Symmetric", 6, 3, 17, 3, -1, 1),
    Sketcher.Constraint("Symmetric", 7, 3, 18, 3, -1, 1),
    Sketcher.Constraint("Symmetric", 9, 3, 20, 3, -1, 1),
    Sketcher.Constraint("Symmetric", 9, 3, 13, 3, -2),
    Sketcher.Constraint("Symmetric", 7, 3, 15, 3, -2),
    Sketcher.Constraint("Symmetric", 0, 1, 11, 1, -1),
    Sketcher.Constraint("PointOnObject", 6, 3, -1),
    Sketcher.Constraint("PointOnObject", 1, 1, -2),
    Sketcher.Constraint("PointOnObject", 12, 1, -2),
    Sketcher.Constraint("Horizontal", 1, 3, 0, 1),
    Sketcher.Constraint("Horizontal", 21, 3, 2, 1),
    Sketcher.Constraint("Horizontal", 19, 3, 4, 1),
    Sketcher.Constraint("Horizontal", 16, 3, 7, 1),
    Sketcher.Constraint("Horizontal", 14, 3, 9, 1),
    Sketcher.Constraint("Horizontal", 9, 1, 13, 1),
    Sketcher.Constraint("Horizontal", 10, 1, 14, 1),
    Sketcher.Constraint("Horizontal", 7, 1, 15, 1),
    Sketcher.Constraint("Horizontal", 8, 1, 16, 1),
    Sketcher.Constraint("Horizontal", 4, 1, 18, 1),
    Sketcher.Constraint("Horizontal", 5, 1, 19, 1),
    Sketcher.Constraint("Horizontal", 2, 1, 20, 1),
    Sketcher.Constraint("Horizontal", 3, 1, 21, 1),
    Sketcher.Constraint("Vertical", 5, 1, 8, 1),
    Sketcher.Constraint("Vertical", 3, 1, 10, 1),
    Sketcher.Constraint("Diameter", 6, Q("6 mm")),
    Sketcher.Constraint("DistanceY", -1, 1, 0, 3, Q("42.5 mm")),
    Sketcher.Constraint("DistanceX", -1, 1, 6, 3, Q("42.5 mm")),
    Sketcher.Constraint("DistanceY", 7, 3, 4, 3, Q("42.5 mm")),
    Sketcher.Constraint("DistanceX", 13, 3, 9, 3, Q("42.5 mm")),
    Sketcher.Constraint("DistanceX", 3, 1, 2, 1, Q("1.5 mm")),
    Sketcher.Constraint("DistanceY", 4, 1, 5, 1, Q("1.5 mm")),
    Sketcher.Constraint("DistanceY", -1, 1, 2, 3, Q("36.80608 mm")),
    Sketcher.Constraint("DistanceX", -1, 1, 4, 3, Q("36.80608 mm")),
])
pad2 = doc.addObject("PartDesign::Pad", "Pad001")
body.addObject(pad2)
pad2.Profile = sketch2
pad2.Length = 2

doc.recompute()
